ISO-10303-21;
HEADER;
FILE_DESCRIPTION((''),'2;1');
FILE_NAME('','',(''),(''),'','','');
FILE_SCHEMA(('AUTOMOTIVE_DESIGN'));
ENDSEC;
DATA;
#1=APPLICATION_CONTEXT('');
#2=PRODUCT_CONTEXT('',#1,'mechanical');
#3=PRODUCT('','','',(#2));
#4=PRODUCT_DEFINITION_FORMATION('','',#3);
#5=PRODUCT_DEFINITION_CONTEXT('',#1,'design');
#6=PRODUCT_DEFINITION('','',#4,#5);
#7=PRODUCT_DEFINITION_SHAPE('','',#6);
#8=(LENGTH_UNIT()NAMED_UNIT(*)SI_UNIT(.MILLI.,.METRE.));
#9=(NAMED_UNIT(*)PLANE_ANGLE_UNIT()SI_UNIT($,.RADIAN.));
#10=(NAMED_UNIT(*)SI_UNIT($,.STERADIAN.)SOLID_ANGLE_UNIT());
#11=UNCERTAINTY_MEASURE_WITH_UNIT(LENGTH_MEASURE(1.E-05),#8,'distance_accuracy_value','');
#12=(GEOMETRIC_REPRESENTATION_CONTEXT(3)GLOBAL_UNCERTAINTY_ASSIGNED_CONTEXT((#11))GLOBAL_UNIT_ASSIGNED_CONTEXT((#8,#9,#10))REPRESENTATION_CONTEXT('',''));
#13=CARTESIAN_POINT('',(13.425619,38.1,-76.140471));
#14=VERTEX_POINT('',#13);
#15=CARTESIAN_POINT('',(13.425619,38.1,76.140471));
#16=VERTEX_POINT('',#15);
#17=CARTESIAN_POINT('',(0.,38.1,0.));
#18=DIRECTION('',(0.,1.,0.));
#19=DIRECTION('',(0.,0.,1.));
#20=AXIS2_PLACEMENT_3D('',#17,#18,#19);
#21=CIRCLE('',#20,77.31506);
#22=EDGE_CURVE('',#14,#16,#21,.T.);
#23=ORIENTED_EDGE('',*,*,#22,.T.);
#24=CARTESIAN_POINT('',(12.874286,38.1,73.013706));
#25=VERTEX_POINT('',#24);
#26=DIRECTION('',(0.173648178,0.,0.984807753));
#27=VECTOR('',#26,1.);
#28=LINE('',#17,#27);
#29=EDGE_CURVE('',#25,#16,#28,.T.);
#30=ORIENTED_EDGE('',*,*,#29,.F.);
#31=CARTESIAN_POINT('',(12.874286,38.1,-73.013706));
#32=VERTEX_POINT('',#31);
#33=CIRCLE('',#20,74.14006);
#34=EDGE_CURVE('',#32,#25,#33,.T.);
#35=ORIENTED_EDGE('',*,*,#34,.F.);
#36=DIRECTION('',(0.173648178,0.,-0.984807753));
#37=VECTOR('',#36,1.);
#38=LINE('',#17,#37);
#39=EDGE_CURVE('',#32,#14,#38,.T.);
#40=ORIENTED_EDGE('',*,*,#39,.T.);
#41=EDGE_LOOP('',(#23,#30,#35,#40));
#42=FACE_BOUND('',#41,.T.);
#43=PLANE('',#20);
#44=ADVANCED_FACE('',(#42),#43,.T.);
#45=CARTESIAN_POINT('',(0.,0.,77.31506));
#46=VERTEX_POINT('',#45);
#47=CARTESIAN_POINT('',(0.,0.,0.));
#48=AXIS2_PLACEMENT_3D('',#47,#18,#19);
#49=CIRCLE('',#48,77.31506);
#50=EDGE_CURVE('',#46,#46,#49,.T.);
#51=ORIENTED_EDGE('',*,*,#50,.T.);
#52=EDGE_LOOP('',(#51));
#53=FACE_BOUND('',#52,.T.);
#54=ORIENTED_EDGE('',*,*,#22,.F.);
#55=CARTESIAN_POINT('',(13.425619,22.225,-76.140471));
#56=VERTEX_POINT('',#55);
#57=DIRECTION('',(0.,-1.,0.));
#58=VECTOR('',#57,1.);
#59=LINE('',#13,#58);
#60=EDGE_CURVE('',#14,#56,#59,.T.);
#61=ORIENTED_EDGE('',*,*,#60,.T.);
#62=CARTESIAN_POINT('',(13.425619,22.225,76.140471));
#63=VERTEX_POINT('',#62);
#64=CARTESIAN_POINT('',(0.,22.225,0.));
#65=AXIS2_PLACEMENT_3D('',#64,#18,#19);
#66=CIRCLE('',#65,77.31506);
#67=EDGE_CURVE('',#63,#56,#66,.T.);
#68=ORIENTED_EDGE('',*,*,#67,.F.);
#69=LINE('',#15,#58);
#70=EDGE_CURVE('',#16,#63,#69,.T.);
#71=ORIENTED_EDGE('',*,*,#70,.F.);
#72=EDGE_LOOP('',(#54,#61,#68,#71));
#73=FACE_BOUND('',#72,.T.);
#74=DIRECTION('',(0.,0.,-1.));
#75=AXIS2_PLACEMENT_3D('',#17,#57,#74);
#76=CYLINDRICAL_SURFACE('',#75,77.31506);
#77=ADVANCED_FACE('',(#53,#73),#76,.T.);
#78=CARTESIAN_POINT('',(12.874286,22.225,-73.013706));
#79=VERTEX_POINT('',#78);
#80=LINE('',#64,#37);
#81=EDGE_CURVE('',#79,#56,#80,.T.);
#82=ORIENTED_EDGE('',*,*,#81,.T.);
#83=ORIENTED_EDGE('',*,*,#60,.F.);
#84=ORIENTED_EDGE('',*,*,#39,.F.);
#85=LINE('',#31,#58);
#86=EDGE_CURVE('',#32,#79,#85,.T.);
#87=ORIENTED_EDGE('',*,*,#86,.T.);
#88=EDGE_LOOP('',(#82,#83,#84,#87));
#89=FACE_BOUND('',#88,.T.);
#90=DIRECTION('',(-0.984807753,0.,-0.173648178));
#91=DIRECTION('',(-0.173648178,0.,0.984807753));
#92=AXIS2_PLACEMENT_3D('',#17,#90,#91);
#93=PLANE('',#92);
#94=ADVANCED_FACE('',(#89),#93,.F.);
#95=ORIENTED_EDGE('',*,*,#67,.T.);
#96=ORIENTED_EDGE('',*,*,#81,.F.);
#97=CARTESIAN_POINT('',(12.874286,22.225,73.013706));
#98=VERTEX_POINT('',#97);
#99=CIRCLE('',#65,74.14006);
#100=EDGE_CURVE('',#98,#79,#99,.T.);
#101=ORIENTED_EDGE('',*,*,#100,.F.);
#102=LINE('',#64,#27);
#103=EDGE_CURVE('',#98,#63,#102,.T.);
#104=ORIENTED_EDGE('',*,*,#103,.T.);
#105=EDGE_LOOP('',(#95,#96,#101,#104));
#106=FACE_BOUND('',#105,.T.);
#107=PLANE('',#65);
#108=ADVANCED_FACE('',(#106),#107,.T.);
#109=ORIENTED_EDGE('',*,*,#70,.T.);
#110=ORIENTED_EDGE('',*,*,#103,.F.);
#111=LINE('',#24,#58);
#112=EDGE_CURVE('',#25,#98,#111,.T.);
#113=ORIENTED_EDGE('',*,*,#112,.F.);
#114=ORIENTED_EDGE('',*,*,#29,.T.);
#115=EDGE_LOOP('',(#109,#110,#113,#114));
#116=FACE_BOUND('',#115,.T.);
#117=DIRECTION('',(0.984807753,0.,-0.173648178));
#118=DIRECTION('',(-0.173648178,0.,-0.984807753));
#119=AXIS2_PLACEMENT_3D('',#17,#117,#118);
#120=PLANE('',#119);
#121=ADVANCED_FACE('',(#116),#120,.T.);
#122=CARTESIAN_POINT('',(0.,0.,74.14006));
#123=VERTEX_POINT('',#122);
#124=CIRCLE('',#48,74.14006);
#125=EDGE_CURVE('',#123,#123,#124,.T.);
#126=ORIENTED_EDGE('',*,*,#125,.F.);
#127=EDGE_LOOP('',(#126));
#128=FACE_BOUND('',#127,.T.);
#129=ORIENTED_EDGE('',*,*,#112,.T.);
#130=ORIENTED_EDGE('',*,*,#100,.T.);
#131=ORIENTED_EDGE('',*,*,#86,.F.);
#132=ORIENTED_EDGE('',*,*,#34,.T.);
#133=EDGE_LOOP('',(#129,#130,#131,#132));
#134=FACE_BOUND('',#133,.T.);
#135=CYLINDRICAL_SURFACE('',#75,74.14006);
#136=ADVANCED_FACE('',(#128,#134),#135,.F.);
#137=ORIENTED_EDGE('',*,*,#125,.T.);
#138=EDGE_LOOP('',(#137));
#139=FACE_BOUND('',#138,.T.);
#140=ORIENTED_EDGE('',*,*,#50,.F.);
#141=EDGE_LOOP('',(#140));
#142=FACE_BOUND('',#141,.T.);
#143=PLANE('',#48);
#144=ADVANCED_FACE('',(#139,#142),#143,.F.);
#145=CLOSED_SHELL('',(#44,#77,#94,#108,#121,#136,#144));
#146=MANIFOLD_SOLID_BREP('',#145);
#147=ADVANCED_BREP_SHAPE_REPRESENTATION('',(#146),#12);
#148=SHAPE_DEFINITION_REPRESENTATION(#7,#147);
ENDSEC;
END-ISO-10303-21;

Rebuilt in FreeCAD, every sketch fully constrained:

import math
import FreeCAD as App
import Part
import Sketcher
Q = App.Units.Quantity

doc = App.newDocument("Part")
body = doc.addObject("PartDesign::Body", "Body")

# Sketch on XZ plane
sketch1 = body.newObject("Sketcher::SketchObject", "Sketch")
sketch1.AttachmentSupport = (doc.getObject("XZ_Plane"), [""])
sketch1.MapMode = "FlatFace"
sketch1.addGeometry([
    Part.LineSegment(App.Vector(13.4, 76.1, 0), App.Vector(12.9, 73, 0)),
    Part.ArcOfCircle(Part.Circle(App.Vector(0, 0, 0), App.Vector(0, 0, 1), 74.1), math.radians(80), math.radians(280)),
    Part.LineSegment(App.Vector(12.9, -73, 0), App.Vector(13.4, -76.1, 0)),
    Part.ArcOfCircle(Part.Circle(App.Vector(0, 0, 0), App.Vector(0, 0, 1), 77.3), math.radians(80), math.radians(280)),
], False)
sketch1.addConstraint([
    Sketcher.Constraint("Coincident", 0, 2, 1, 1),
    Sketcher.Constraint("Coincident", 1, 2, 2, 1),
    Sketcher.Constraint("Coincident", 2, 2, 3, 2),
    Sketcher.Constraint("Coincident", 3, 1, 0, 1),
    Sketcher.Constraint("Coincident", 1, 3, -1, 1),
    Sketcher.Constraint("Coincident", 3, 3, -1, 1),
    Sketcher.Constraint("Vertical", 0, 2, 1, 2),
    Sketcher.Constraint("Vertical", 2, 2, 3, 1),
    Sketcher.Constraint("Angle", 0, Q("-100 deg")),
    Sketcher.Constraint("Radius", 1, Q("2.9189 in")),
    Sketcher.Constraint("Radius", 3, Q("3.0439 in")),
    Sketcher.Constraint("DistanceX", -1, 1, 2, 2, 13.425619),
])
pad1 = body.newObject("PartDesign::Pad", "Pad")
pad1.Profile = sketch1
pad1.Length = Q("1.5 in")
pad1.Reversed = True

# Sketch on XZ plane
sketch2 = body.newObject("Sketcher::SketchObject", "Sketch001")
sketch2.AttachmentSupport = (doc.getObject("XZ_Plane"), [""])
sketch2.MapMode = "FlatFace"
sketch2.addGeometry([
    Part.Circle(App.Vector(0, 0, 0), App.Vector(0, 0, 1), 77),
    Part.Circle(App.Vector(0, 0, 0), App.Vector(0, 0, 1), 74),
], False)
sketch2.addConstraint([
    Sketcher.Constraint("Coincident", 0, 3, -1, 1),
    Sketcher.Constraint("Coincident", 1, 3, -1, 1),
    Sketcher.Constraint("Diameter", 0, Q("6.0878 in")),
    Sketcher.Constraint("Diameter", 1, Q("5.8378 in")),
])
pad2 = body.newObject("PartDesign::Pad", "Pad001")
pad2.Profile = sketch2
pad2.Length = Q("0.875 in")
pad2.Reversed = True

doc.recompute()
